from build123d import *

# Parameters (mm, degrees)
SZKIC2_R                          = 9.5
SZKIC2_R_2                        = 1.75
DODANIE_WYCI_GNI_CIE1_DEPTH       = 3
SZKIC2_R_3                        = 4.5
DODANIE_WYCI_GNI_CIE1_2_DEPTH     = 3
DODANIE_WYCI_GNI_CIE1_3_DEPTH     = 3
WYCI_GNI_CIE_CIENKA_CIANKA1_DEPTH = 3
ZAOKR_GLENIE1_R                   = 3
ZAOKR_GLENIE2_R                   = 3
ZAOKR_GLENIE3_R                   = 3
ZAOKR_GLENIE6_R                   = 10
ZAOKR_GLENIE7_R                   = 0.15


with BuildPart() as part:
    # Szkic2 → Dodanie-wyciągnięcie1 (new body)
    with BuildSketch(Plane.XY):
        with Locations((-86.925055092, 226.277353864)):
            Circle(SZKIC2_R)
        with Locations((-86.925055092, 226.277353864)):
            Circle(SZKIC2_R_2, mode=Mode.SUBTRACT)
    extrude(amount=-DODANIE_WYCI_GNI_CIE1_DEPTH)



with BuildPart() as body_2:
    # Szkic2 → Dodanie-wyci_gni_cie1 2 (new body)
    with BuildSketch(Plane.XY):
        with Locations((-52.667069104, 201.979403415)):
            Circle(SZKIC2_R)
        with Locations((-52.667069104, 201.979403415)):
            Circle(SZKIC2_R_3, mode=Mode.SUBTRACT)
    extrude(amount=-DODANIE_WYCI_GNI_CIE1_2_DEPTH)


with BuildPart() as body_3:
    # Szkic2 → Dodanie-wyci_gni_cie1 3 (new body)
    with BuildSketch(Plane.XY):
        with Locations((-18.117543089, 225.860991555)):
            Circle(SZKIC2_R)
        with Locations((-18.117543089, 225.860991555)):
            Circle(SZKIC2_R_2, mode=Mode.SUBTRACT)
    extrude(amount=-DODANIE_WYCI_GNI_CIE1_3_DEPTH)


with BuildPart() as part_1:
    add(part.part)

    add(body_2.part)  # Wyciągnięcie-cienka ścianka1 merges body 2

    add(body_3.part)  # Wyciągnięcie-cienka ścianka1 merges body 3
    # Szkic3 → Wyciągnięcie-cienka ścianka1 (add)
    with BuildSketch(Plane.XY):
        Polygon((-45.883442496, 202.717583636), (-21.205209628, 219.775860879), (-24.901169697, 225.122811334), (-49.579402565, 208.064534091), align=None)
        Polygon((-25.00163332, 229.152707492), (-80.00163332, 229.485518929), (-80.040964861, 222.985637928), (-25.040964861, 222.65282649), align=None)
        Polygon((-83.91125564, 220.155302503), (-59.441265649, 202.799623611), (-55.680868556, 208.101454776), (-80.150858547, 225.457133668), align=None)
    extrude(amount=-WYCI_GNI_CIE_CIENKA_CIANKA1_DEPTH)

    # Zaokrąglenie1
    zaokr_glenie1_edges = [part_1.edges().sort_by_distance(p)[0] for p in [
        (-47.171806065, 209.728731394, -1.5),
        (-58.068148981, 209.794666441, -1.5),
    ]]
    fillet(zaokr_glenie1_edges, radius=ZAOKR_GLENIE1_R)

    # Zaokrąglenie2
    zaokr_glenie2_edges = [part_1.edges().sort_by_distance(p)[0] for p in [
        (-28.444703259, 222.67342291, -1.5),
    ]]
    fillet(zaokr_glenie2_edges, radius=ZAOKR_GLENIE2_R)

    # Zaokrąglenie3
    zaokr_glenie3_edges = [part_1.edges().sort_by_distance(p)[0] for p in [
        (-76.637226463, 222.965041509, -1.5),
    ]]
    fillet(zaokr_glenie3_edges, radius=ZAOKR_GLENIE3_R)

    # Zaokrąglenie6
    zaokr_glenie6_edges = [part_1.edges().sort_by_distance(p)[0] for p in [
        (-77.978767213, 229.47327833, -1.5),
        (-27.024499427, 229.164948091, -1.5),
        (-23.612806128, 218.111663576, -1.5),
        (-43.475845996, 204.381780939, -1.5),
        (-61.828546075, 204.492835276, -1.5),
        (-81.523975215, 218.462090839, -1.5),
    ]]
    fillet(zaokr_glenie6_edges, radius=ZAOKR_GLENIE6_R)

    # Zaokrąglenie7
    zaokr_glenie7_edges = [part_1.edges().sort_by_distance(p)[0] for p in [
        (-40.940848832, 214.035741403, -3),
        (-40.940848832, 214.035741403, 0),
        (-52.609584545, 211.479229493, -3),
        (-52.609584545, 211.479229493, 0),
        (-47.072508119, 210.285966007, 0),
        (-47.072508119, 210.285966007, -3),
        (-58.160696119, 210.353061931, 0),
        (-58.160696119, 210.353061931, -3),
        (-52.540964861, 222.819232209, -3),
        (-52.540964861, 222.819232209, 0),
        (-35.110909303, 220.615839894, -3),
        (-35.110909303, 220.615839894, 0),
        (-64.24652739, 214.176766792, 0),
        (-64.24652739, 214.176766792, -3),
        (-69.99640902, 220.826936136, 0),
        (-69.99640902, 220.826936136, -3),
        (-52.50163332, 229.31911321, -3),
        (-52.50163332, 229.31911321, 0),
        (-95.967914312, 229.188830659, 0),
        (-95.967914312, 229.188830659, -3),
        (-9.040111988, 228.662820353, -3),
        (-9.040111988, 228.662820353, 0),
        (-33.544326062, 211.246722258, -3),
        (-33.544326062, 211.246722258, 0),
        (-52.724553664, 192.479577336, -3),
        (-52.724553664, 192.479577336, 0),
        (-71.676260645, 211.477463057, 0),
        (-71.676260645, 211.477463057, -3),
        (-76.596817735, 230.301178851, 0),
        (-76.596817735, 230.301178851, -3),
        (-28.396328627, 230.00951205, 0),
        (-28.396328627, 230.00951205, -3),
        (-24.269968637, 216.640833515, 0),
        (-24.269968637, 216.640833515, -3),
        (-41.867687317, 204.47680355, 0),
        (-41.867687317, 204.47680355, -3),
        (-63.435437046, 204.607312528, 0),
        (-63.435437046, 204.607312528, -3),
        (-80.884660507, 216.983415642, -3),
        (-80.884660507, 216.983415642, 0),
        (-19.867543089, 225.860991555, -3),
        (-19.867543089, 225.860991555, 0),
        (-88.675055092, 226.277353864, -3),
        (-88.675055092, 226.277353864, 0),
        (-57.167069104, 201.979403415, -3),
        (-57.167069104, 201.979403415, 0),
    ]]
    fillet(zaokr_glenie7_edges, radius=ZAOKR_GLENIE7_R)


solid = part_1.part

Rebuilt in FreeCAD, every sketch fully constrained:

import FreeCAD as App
import Part
import Sketcher

V = App.Vector
Q = App.Units.Quantity


def edges_at(feature, points):
    """Names of the edges that pass closest to the given points."""
    edges = feature.Shape.Edges
    near = lambda p: min(range(len(edges)), key=lambda i: edges[i].distToShape(Part.Vertex(*p))[0])
    return sorted({f"Edge{near(p) + 1}" for p in points})

doc = App.newDocument("Part")
body = doc.addObject("PartDesign::Body", "Body")

sketch1 = body.newObject("Sketcher::SketchObject", "Sketch")
sketch1.AttachmentSupport = (doc.getObject("XY_Plane"), [""])
sketch1.MapMode = "FlatFace"
sketch1.addGeometry(Part.Circle(V(-86.925055, 226.277354, 0), V(0, 0, 1), 9.5), False)
sketch1.addGeometry(Part.Circle(V(-86.925055, 226.277354, 0), V(0, 0, 1), 1.75), False)
sketch1.addConstraint(Sketcher.Constraint("Coincident", 1, 3, 0, 3))
sketch1.addConstraint(Sketcher.Constraint("Diameter", 0, Q("19 mm")))
sketch1.addConstraint(Sketcher.Constraint("Diameter", 1, Q("3.5 mm")))
sketch1.addConstraint(Sketcher.Constraint("DistanceX", 0, 3, -1, 1, Q("86.925055 mm")))
sketch1.addConstraint(Sketcher.Constraint("DistanceY", -1, 1, 0, 3, Q("226.277354 mm")))
pad1 = body.newObject("PartDesign::Pad", "Pad")
pad1.Profile = sketch1
pad1.Length = 3
pad1.Reversed = True
body2 = doc.addObject("PartDesign::Body", "Body001")

sketch2 = body2.newObject("Sketcher::SketchObject", "Sketch001")
sketch2.AttachmentSupport = (doc.getObject("XY_Plane001"), [""])
sketch2.MapMode = "FlatFace"
sketch2.addGeometry(Part.Circle(V(-52.667069, 201.979403, 0), V(0, 0, 1), 9.5), False)
sketch2.addGeometry(Part.Circle(V(-52.667069, 201.979403, 0), V(0, 0, 1), 4.5), False)
sketch2.addConstraint(Sketcher.Constraint("Coincident", 1, 3, 0, 3))
sketch2.addConstraint(Sketcher.Constraint("Diameter", 0, Q("19 mm")))
sketch2.addConstraint(Sketcher.Constraint("Diameter", 1, Q("9 mm")))
sketch2.addConstraint(Sketcher.Constraint("DistanceX", 0, 3, -1, 1, Q("52.667069 mm")))
sketch2.addConstraint(Sketcher.Constraint("DistanceY", -1, 1, 0, 3, Q("201.979403 mm")))
pad2 = body2.newObject("PartDesign::Pad", "Pad001")
pad2.Profile = sketch2
pad2.Length = 3
pad2.Reversed = True
body3 = doc.addObject("PartDesign::Body", "Body002")

sketch3 = body3.newObject("Sketcher::SketchObject", "Sketch002")
sketch3.AttachmentSupport = (doc.getObject("XY_Plane002"), [""])
sketch3.MapMode = "FlatFace"
sketch3.addGeometry(Part.Circle(V(-18.117543, 225.860992, 0), V(0, 0, 1), 9.5), False)
sketch3.addGeometry(Part.Circle(V(-18.117543, 225.860992, 0), V(0, 0, 1), 1.75), False)
sketch3.addConstraint(Sketcher.Constraint("Coincident", 1, 3, 0, 3))
sketch3.addConstraint(Sketcher.Constraint("Diameter", 0, Q("19 mm")))
sketch3.addConstraint(Sketcher.Constraint("Diameter", 1, Q("3.5 mm")))
sketch3.addConstraint(Sketcher.Constraint("DistanceY", -1, 1, 0, 3, Q("225.860992 mm")))
sketch3.addConstraint(Sketcher.Constraint("DistanceX", 0, 3, -1, 1, Q("18.117543 mm")))
pad3 = body3.newObject("PartDesign::Pad", "Pad002")
pad3.Profile = sketch3
pad3.Length = 3
pad3.Reversed = True
body.AllowCompound = True
doc.recompute()

boolean = body.newObject("PartDesign::Boolean", "Boolean")
boolean.Type = "Fuse"
boolean.addObjects([body2])
doc.recompute()

boolean2 = body.newObject("PartDesign::Boolean", "Boolean001")
boolean2.Type = "Fuse"
boolean2.addObjects([body3])

sketch4 = body.newObject("Sketcher::SketchObject", "Sketch003")
sketch4.AttachmentSupport = (doc.getObject("XY_Plane"), [""])
sketch4.MapMode = "FlatFace"
sketch4.addGeometry(Part.LineSegment(V(-28.444703, 222.673423, 0), V(-49.579403, 208.064534, 0)), False)
sketch4.addGeometry(Part.LineSegment(V(-49.579403, 208.064534, 0), V(-45.883442, 202.717584, 0)), False)
sketch4.addGeometry(Part.LineSegment(V(-45.883442, 202.717584, 0), V(-21.20521, 219.775861, 0)), False)
sketch4.addGeometry(Part.LineSegment(V(-21.20521, 219.775861, 0), V(-24.90117, 225.122811, 0)), False)
sketch4.addGeometry(Part.LineSegment(V(-24.90117, 225.122811, 0), V(-25.026543, 225.03615, 0)), False)
sketch4.addGeometry(Part.LineSegment(V(-25.026543, 225.03615, 0), V(-25.001633, 229.152707, 0)), False)
sketch4.addGeometry(Part.LineSegment(V(-25.001633, 229.152707, 0), V(-80.001633, 229.485519, 0)), False)
sketch4.addGeometry(Part.LineSegment(V(-80.001633, 229.485519, 0), V(-80.026543, 225.368961, 0)), False)
sketch4.addGeometry(Part.LineSegment(V(-80.026543, 225.368961, 0), V(-80.150859, 225.457134, 0)), False)
sketch4.addGeometry(Part.LineSegment(V(-80.150859, 225.457134, 0), V(-83.911256, 220.155303, 0)), False)
sketch4.addGeometry(Part.LineSegment(V(-83.911256, 220.155303, 0), V(-59.441266, 202.799624, 0)), False)
sketch4.addGeometry(Part.LineSegment(V(-59.441266, 202.799624, 0), V(-55.680869, 208.101455, 0)), False)
sketch4.addGeometry(Part.LineSegment(V(-55.680869, 208.101455, 0), V(-76.637226, 222.965042, 0)), False)
sketch4.addGeometry(Part.LineSegment(V(-76.637226, 222.965042, 0), V(-28.444703, 222.673423, 0)), False)
sketch4.addConstraint(Sketcher.Constraint("Coincident", 0, 2, 1, 1))
sketch4.addConstraint(Sketcher.Constraint("Coincident", 1, 2, 2, 1))
sketch4.addConstraint(Sketcher.Constraint("Coincident", 2, 2, 3, 1))
sketch4.addConstraint(Sketcher.Constraint("Coincident", 3, 2, 4, 1))
sketch4.addConstraint(Sketcher.Constraint("Coincident", 4, 2, 5, 1))
sketch4.addConstraint(Sketcher.Constraint("Coincident", 5, 2, 6, 1))
sketch4.addConstraint(Sketcher.Constraint("Coincident", 6, 2, 7, 1))
sketch4.addConstraint(Sketcher.Constraint("Coincident", 7, 2, 8, 1))
sketch4.addConstraint(Sketcher.Constraint("Coincident", 8, 2, 9, 1))
sketch4.addConstraint(Sketcher.Constraint("Coincident", 9, 2, 10, 1))
sketch4.addConstraint(Sketcher.Constraint("Coincident", 10, 2, 11, 1))
sketch4.addConstraint(Sketcher.Constraint("Coincident", 11, 2, 12, 1))
sketch4.addConstraint(Sketcher.Constraint("Coincident", 12, 2, 13, 1))
sketch4.addConstraint(Sketcher.Constraint("Coincident", 13, 2, 0, 1))
sketch4.addConstraint(Sketcher.Constraint("Perpendicular", 0, 1))
sketch4.addConstraint(Sketcher.Constraint("Perpendicular", 1, 2))
sketch4.addConstraint(Sketcher.Constraint("Perpendicular", 2, 3))
sketch4.addConstraint(Sketcher.Constraint("Perpendicular", 3, 4))
sketch4.addConstraint(Sketcher.Constraint("Perpendicular", 5, 6))
sketch4.addConstraint(Sketcher.Constraint("Perpendicular", 6, 7))
sketch4.addConstraint(Sketcher.Constraint("Perpendicular", 8, 9))
sketch4.addConstraint(Sketcher.Constraint("Perpendicular", 9, 10))
sketch4.addConstraint(Sketcher.Constraint("Perpendicular", 10, 11))
sketch4.addConstraint(Sketcher.Constraint("Perpendicular", 11, 12))
sketch4.addConstraint(Sketcher.Constraint("Perpendicular", 7, 13))
sketch4.addConstraint(Sketcher.Constraint("Equal", 1, 3))
sketch4.addConstraint(Sketcher.Constraint("Equal", 5, 7))
sketch4.addConstraint(Sketcher.Constraint("Equal", 4, 8))
sketch4.addConstraint(Sketcher.Constraint("Equal", 3, 9))
sketch4.addConstraint(Sketcher.Constraint("Equal", 2, 10))
sketch4.addConstraint(Sketcher.Constraint("Equal", 9, 11))
sketch4.addConstraint(Sketcher.Constraint("Equal", 0, 12))
sketch4.addConstraint(Sketcher.Constraint("Distance", 2, Q("30 mm")))
sketch4.addConstraint(Sketcher.Constraint("DistanceX", 6, 2, 5, 2, Q("55 mm")))
sketch4.addConstraint(Sketcher.Constraint("Distance", 1, Q("6.5 mm")))
sketch4.addConstraint(Sketcher.Constraint("DistanceX", 1, 2, 4, 2, Q("20.856899 mm")))
sketch4.addConstraint(Sketcher.Constraint("DistanceY", 0, 2, 8, 2, Q("17.3926 mm")))
sketch4.addConstraint(Sketcher.Constraint("DistanceX", 0, 2, 13, 2, Q("21.134699 mm")))
sketch4.addConstraint(Sketcher.Constraint("Distance", 4, Q("0.15241 mm")))
sketch4.addConstraint(Sketcher.Constraint("DistanceX", 2, 2, -1, 1, Q("21.20521 mm")))
sketch4.addConstraint(Sketcher.Constraint("DistanceY", -1, 1, 2, 2, Q("219.775861 mm")))
sketch4.addConstraint(Sketcher.Constraint("DistanceY", -1, 1, 6, 2, Q("229.485519 mm")))
pad4 = body.newObject("PartDesign::Pad", "Pad003")
pad4.Profile = sketch4
pad4.Length = 3
pad4.Reversed = True
doc.recompute()

fillet = body.newObject("PartDesign::Fillet", "Fillet")
fillet.Base = (pad4, edges_at(pad4, [(-47.172, 209.729, -1.5), (-58.068, 209.795, -1.5)]))
fillet.Radius = 3
doc.recompute()

fillet2 = body.newObject("PartDesign::Fillet", "Fillet001")
fillet2.Base = (fillet, edges_at(fillet, [(-28.445, 222.673, -1.5)]))
fillet2.Radius = 3
doc.recompute()

fillet3 = body.newObject("PartDesign::Fillet", "Fillet002")
fillet3.Base = (fillet2, edges_at(fillet2, [(-76.637, 222.965, -1.5)]))
fillet3.Radius = 3
doc.recompute()

fillet4 = body.newObject("PartDesign::Fillet", "Fillet003")
fillet4.Base = (fillet3, edges_at(fillet3, [
    (-77.979, 229.473, -1.5),
    (-27.024, 229.165, -1.5),
    (-23.613, 218.112, -1.5),
    (-43.476, 204.382, -1.5),
    (-61.829, 204.493, -1.5),
    (-81.524, 218.462, -1.5),
]))
fillet4.Radius = 10
doc.recompute()

fillet5 = body.newObject("PartDesign::Fillet", "Fillet004")
fillet5.Base = (fillet4, edges_at(fillet4, [
    (-40.941, 214.036, -3),
    (-40.941, 214.036, 0),
    (-52.61, 211.479, -3),
    (-52.61, 211.479, 0),
    (-47.073, 210.286, 0),
    (-47.073, 210.286, -3),
    (-58.161, 210.353, 0),
    (-58.161, 210.353, -3),
    (-52.541, 222.819, -3),
    (-52.541, 222.819, 0),
    (-35.111, 220.616, -3),
    (-35.111, 220.616, 0),
    (-64.247, 214.177, 0),
    (-64.247, 214.177, -3),
    (-69.996, 220.827, 0),
    (-69.996, 220.827, -3),
    (-52.502, 229.319, -3),
    (-52.502, 229.319, 0),
    (-95.968, 229.189, 0),
    (-95.968, 229.189, -3),
    (-9.04, 228.663, -3),
    (-9.04, 228.663, 0),
    (-33.544, 211.247, -3),
    (-33.544, 211.247, 0),
    (-52.725, 192.48, -3),
    (-52.725, 192.48, 0),
    (-71.676, 211.477, 0),
    (-71.676, 211.477, -3),
    (-76.597, 230.301, 0),
    (-76.597, 230.301, -3),
    (-28.396, 230.01, 0),
    (-28.396, 230.01, -3),
    (-24.27, 216.641, 0),
    (-24.27, 216.641, -3),
    (-41.868, 204.477, 0),
    (-41.868, 204.477, -3),
    (-63.435, 204.607, 0),
    (-63.435, 204.607, -3),
    (-80.885, 216.983, -3),
    (-80.885, 216.983, 0),
    (-19.868, 225.861, -3),
    (-19.868, 225.861, 0),
    (-88.675, 226.277, -3),
    (-88.675, 226.277, 0),
    (-57.167, 201.979, -3),
    (-57.167, 201.979, 0),
]))
fillet5.Radius = 0.15

doc.recompute()
